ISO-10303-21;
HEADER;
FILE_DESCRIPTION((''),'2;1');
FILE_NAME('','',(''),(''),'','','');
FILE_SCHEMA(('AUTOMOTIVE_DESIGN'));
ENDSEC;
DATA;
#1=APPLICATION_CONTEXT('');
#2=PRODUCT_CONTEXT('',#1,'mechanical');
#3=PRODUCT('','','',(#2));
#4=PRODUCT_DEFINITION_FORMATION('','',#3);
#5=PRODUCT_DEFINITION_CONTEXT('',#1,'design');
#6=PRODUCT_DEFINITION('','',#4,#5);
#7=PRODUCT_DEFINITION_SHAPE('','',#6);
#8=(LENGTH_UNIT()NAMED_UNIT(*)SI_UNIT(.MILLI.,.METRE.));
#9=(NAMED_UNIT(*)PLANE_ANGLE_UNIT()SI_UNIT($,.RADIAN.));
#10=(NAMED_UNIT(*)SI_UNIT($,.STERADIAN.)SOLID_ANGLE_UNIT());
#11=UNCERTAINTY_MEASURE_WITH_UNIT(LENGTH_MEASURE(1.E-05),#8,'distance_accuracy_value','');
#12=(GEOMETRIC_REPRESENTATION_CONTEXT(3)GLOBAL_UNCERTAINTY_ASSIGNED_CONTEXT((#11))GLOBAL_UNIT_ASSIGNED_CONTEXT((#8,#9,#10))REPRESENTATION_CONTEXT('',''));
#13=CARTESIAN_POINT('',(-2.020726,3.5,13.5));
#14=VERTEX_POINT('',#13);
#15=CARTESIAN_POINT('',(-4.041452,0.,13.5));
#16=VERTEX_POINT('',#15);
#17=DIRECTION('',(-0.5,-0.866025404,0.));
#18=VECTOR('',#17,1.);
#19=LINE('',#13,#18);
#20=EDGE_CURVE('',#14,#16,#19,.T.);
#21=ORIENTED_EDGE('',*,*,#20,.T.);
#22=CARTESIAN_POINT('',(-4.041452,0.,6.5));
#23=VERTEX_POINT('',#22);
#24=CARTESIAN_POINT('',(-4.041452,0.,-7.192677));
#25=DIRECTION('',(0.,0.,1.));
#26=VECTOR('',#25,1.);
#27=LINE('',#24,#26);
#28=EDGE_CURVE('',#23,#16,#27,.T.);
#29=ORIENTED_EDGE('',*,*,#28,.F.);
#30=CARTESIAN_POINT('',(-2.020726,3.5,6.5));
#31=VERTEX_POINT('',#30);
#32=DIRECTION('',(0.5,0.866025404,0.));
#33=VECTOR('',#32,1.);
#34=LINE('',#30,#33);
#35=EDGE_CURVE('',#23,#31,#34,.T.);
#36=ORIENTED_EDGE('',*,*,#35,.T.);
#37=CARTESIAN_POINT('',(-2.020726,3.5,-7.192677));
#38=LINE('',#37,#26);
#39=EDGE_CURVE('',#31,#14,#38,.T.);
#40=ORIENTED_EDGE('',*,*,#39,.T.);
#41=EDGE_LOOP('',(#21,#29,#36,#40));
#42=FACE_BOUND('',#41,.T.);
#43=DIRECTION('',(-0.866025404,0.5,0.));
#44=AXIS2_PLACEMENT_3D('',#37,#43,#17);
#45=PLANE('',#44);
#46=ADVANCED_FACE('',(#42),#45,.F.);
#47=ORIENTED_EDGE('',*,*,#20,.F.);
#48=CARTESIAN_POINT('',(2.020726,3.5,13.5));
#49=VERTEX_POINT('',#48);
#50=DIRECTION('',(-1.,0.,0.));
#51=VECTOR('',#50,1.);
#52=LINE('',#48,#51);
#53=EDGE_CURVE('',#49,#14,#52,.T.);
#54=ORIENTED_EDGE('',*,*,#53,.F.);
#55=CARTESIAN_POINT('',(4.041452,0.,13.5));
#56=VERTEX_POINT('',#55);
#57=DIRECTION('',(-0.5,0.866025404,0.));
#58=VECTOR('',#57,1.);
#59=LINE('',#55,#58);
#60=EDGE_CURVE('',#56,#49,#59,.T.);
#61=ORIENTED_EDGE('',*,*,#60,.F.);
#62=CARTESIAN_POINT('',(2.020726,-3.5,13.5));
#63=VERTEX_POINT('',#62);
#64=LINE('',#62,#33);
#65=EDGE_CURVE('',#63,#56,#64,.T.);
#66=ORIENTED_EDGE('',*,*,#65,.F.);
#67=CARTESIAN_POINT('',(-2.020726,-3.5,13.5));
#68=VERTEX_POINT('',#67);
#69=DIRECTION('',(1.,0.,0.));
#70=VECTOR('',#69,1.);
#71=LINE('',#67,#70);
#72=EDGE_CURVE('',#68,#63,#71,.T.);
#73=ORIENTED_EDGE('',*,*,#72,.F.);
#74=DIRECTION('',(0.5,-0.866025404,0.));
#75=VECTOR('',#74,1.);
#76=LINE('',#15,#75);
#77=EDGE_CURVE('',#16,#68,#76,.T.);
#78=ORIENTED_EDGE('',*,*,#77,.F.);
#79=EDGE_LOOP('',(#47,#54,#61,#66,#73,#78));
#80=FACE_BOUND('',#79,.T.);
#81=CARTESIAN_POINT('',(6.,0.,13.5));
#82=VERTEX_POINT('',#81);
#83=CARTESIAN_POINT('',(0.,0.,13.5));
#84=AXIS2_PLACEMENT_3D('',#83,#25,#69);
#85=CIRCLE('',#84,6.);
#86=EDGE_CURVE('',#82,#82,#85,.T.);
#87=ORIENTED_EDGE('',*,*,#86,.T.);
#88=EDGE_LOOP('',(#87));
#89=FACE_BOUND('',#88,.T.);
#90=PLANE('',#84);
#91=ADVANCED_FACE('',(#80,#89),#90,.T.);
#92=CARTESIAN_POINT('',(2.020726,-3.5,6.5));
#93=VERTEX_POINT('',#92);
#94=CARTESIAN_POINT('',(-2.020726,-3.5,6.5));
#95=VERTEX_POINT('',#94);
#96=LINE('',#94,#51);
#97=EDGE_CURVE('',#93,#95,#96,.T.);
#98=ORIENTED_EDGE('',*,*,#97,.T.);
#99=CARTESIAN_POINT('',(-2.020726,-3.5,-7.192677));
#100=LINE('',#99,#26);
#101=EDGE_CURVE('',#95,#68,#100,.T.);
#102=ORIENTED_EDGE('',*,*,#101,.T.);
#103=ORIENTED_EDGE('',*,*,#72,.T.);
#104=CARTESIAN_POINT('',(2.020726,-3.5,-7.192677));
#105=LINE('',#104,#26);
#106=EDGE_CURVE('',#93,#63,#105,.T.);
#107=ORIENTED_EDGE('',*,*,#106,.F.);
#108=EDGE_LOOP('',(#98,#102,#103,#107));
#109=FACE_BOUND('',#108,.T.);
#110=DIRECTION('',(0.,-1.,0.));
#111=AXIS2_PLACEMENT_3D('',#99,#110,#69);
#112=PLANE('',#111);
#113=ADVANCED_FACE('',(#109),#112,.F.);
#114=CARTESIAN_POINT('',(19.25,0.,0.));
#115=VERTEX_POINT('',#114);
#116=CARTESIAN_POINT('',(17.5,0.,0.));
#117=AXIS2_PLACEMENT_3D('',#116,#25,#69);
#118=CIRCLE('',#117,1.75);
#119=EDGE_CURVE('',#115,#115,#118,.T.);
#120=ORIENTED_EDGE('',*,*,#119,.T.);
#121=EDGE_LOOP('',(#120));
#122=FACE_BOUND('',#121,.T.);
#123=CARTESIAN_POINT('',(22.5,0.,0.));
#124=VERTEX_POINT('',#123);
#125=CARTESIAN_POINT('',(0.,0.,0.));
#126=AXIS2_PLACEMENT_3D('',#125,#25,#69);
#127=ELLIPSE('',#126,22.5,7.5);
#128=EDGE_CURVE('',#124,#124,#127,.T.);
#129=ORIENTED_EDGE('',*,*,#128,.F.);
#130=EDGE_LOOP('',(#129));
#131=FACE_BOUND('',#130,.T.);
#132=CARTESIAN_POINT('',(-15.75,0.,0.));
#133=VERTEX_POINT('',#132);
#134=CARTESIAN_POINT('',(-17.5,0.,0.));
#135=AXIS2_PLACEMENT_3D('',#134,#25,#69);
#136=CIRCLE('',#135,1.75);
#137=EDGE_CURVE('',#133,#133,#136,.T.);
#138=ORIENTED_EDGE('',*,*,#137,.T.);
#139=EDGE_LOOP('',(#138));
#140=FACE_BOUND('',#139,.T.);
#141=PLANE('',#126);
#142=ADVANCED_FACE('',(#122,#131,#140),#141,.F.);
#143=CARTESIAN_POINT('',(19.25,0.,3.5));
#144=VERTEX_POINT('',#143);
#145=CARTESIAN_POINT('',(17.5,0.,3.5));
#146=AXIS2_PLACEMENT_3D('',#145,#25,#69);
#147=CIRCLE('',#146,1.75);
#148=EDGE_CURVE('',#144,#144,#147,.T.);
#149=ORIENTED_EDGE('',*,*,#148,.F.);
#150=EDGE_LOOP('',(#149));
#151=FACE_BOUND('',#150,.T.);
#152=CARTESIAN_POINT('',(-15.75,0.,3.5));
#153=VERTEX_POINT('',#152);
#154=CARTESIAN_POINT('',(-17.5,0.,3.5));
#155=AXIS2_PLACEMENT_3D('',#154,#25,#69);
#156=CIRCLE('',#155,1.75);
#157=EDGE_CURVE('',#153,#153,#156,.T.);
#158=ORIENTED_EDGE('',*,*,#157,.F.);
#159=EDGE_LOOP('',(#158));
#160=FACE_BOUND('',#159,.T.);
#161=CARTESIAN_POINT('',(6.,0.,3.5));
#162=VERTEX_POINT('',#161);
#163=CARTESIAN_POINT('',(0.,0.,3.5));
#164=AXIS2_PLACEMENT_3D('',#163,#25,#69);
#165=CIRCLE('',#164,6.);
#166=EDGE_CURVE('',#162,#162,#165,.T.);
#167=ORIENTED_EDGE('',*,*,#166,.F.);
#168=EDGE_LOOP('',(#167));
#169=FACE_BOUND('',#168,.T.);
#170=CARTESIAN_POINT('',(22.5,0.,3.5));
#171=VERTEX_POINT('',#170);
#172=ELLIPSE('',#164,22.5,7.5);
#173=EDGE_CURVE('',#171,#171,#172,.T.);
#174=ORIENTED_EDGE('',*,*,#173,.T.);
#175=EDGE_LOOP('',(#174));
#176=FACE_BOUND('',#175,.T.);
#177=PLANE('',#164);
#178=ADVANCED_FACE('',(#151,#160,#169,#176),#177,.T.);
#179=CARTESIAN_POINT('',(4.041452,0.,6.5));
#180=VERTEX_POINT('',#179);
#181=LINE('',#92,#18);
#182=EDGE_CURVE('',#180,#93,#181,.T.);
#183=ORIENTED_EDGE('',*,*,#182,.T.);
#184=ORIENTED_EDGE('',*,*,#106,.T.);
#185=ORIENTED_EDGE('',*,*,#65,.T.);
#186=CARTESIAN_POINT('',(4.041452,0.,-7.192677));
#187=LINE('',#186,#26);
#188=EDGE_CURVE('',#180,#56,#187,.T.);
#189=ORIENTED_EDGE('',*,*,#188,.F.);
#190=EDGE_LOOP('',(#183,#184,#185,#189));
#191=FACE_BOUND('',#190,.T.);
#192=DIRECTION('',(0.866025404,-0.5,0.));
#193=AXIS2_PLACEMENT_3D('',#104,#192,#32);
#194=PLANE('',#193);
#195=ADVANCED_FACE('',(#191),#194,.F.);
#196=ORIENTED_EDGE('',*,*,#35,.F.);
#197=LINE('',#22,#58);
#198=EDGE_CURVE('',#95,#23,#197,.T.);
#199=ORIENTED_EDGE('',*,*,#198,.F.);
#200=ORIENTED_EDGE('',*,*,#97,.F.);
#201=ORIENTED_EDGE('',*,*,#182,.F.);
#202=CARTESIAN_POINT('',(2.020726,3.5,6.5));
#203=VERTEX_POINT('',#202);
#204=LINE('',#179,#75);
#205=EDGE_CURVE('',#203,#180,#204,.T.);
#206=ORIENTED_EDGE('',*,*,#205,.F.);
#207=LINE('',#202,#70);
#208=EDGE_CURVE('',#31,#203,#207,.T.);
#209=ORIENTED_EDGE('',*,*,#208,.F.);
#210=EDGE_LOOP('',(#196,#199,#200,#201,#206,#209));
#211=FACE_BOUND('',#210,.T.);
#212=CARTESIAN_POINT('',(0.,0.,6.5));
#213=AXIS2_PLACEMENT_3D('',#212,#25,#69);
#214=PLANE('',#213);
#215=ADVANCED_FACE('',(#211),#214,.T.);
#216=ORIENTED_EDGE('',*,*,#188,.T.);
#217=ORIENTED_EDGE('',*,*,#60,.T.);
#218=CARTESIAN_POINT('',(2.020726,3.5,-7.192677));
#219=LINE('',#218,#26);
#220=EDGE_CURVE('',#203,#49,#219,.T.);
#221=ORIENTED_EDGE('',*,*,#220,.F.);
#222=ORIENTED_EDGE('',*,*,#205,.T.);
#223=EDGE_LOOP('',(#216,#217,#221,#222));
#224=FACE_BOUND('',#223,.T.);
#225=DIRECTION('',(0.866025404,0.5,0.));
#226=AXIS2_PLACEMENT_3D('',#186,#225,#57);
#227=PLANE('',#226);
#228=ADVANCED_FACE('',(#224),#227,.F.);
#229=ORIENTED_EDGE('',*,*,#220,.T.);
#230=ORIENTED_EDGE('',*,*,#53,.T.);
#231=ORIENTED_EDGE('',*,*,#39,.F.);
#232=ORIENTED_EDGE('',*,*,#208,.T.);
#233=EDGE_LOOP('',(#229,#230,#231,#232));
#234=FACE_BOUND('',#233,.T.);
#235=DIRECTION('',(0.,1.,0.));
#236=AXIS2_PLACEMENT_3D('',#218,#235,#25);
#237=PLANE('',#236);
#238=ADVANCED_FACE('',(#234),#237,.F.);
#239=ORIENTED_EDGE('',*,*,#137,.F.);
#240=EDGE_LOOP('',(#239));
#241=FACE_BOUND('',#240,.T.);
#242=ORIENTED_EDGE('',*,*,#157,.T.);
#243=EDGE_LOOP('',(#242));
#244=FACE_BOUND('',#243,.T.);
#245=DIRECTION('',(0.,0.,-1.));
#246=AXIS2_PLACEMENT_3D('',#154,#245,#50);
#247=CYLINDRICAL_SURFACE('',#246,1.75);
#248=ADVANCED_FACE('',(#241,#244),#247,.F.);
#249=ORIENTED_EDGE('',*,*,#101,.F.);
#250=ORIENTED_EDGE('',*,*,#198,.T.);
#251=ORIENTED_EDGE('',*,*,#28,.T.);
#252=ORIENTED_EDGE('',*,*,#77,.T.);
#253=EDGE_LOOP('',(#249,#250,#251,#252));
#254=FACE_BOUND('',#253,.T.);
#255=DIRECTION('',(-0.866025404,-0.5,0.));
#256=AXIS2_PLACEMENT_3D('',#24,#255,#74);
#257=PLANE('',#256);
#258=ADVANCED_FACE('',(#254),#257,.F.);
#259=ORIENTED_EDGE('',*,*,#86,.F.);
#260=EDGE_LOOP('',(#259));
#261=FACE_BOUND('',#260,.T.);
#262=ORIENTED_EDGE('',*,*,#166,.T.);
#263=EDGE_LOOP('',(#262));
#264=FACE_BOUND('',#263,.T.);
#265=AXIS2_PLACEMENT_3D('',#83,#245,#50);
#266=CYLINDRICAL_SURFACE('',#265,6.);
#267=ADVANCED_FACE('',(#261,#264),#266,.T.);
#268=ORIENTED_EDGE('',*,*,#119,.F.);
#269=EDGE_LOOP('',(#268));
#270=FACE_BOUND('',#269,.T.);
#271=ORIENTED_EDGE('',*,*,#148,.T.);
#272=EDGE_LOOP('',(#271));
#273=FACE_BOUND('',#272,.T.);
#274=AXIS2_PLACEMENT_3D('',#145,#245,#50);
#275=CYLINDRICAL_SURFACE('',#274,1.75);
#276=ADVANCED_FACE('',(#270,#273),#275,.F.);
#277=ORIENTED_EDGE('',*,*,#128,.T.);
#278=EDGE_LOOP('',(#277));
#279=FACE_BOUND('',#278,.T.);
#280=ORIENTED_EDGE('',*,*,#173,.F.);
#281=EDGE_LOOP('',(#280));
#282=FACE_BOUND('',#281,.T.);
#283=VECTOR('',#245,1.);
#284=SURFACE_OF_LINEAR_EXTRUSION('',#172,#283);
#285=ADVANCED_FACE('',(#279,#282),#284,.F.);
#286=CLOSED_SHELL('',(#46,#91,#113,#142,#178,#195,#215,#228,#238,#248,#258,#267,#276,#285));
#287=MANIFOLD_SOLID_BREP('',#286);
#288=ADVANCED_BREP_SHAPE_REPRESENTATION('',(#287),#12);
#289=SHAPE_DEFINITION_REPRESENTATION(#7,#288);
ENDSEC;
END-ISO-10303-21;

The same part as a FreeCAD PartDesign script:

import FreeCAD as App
import Part
import Sketcher

V = App.Vector
Q = App.Units.Quantity

doc = App.newDocument("Part")
body = doc.addObject("PartDesign::Body", "Body")

sketch1 = doc.addObject("Sketcher::SketchObject", "Sketch")
body.addObject(sketch1)
sketch1.AttachmentSupport = (doc.XY_Plane, [""])
sketch1.MapMode = "FlatFace"
sketch1.addGeometry([
    Part.Ellipse(V(22.5, 0, 0), V(0, 7.5, 0), V(0, 0, 0)),
    Part.Circle(V(-17.5, 0, 0), V(0, 0, 1), 1.75),
    Part.Circle(V(17.5, 0, 0), V(0, 0, 1), 1.75),
], False)
sketch1.addConstraint([
    Sketcher.Constraint("Block", 0),
    Sketcher.Constraint("Equal", 1, 2),
    Sketcher.Constraint("Symmetric", 1, 3, 2, 3, -1, 1),
    Sketcher.Constraint("PointOnObject", 1, 3, -1),
    Sketcher.Constraint("Diameter", 1, 3.5),
    Sketcher.Constraint("DistanceX", 1, 3, 2, 3, 35.0),
])
pad1 = doc.addObject("PartDesign::Pad", "Pad")
body.addObject(pad1)
pad1.Profile = sketch1
pad1.Length = 3.5

sketch2 = doc.addObject("Sketcher::SketchObject", "Sketch001")
body.addObject(sketch2)
sketch2.AttachmentSupport = (doc.XY_Plane, [""])
sketch2.MapMode = "FlatFace"
sketch2.AttachmentOffset = App.Placement(V(0, 0, 3.5), App.Rotation())
sketch2.addGeometry(Part.Circle(V(0, 0, 0), V(0, 0, 1), 6), False)
sketch2.addConstraint([
    Sketcher.Constraint("Coincident", 0, 3, -1, 1),
    Sketcher.Constraint("Diameter", 0, 12.0),
])
pad2 = doc.addObject("PartDesign::Pad", "Pad001")
body.addObject(pad2)
pad2.Profile = sketch2
pad2.Length = 10

sketch3 = doc.addObject("Sketcher::SketchObject", "Sketch002")
body.addObject(sketch3)
sketch3.AttachmentSupport = (doc.XY_Plane, [""])
sketch3.MapMode = "FlatFace"
sketch3.AttachmentOffset = App.Placement(V(0, 0, 13.5), App.Rotation())
sketch3.addGeometry([
    Part.LineSegment(V(4, 0, 0), V(2, 3.5, 0)),
    Part.LineSegment(V(2, 3.5, 0), V(-2, 3.5, 0)),
    Part.LineSegment(V(-2, 3.5, 0), V(-4, 0, 0)),
    Part.LineSegment(V(-4, 0, 0), V(-2, -3.5, 0)),
    Part.LineSegment(V(-2, -3.5, 0), V(2, -3.5, 0)),
    Part.LineSegment(V(2, -3.5, 0), V(4, 0, 0)),
], False)
sketch3.addConstraint([
    Sketcher.Constraint("Coincident", 0, 2, 1, 1),
    Sketcher.Constraint("Coincident", 1, 2, 2, 1),
    Sketcher.Constraint("Coincident", 2, 2, 3, 1),
    Sketcher.Constraint("Coincident", 3, 2, 4, 1),
    Sketcher.Constraint("Coincident", 4, 2, 5, 1),
    Sketcher.Constraint("Coincident", 5, 2, 0, 1),
    Sketcher.Constraint("Horizontal", 1),
    Sketcher.Constraint("Horizontal", 4),
    Sketcher.Constraint("Symmetric", 0, 2, 3, 2, -1, 1),
    Sketcher.Constraint("Symmetric", 2, 2, 5, 2, -1, 1),
    Sketcher.Constraint("PointOnObject", 2, 2, -1),
    Sketcher.Constraint("Parallel", 2, 5),
    Sketcher.Constraint("Vertical", 1, 2, 3, 2),
    Sketcher.Constraint("Angle", 0, Q("120 deg")),
    Sketcher.Constraint("DistanceY", 3, 2, 1, 2, 7.0),
    Sketcher.Constraint("DistanceX", 1, 2, 1, 1, 4.041452),
])
pocket1 = doc.addObject("PartDesign::Pocket", "Pocket")
body.addObject(pocket1)
pocket1.Profile = sketch3
pocket1.Length = 7

doc.recompute()
